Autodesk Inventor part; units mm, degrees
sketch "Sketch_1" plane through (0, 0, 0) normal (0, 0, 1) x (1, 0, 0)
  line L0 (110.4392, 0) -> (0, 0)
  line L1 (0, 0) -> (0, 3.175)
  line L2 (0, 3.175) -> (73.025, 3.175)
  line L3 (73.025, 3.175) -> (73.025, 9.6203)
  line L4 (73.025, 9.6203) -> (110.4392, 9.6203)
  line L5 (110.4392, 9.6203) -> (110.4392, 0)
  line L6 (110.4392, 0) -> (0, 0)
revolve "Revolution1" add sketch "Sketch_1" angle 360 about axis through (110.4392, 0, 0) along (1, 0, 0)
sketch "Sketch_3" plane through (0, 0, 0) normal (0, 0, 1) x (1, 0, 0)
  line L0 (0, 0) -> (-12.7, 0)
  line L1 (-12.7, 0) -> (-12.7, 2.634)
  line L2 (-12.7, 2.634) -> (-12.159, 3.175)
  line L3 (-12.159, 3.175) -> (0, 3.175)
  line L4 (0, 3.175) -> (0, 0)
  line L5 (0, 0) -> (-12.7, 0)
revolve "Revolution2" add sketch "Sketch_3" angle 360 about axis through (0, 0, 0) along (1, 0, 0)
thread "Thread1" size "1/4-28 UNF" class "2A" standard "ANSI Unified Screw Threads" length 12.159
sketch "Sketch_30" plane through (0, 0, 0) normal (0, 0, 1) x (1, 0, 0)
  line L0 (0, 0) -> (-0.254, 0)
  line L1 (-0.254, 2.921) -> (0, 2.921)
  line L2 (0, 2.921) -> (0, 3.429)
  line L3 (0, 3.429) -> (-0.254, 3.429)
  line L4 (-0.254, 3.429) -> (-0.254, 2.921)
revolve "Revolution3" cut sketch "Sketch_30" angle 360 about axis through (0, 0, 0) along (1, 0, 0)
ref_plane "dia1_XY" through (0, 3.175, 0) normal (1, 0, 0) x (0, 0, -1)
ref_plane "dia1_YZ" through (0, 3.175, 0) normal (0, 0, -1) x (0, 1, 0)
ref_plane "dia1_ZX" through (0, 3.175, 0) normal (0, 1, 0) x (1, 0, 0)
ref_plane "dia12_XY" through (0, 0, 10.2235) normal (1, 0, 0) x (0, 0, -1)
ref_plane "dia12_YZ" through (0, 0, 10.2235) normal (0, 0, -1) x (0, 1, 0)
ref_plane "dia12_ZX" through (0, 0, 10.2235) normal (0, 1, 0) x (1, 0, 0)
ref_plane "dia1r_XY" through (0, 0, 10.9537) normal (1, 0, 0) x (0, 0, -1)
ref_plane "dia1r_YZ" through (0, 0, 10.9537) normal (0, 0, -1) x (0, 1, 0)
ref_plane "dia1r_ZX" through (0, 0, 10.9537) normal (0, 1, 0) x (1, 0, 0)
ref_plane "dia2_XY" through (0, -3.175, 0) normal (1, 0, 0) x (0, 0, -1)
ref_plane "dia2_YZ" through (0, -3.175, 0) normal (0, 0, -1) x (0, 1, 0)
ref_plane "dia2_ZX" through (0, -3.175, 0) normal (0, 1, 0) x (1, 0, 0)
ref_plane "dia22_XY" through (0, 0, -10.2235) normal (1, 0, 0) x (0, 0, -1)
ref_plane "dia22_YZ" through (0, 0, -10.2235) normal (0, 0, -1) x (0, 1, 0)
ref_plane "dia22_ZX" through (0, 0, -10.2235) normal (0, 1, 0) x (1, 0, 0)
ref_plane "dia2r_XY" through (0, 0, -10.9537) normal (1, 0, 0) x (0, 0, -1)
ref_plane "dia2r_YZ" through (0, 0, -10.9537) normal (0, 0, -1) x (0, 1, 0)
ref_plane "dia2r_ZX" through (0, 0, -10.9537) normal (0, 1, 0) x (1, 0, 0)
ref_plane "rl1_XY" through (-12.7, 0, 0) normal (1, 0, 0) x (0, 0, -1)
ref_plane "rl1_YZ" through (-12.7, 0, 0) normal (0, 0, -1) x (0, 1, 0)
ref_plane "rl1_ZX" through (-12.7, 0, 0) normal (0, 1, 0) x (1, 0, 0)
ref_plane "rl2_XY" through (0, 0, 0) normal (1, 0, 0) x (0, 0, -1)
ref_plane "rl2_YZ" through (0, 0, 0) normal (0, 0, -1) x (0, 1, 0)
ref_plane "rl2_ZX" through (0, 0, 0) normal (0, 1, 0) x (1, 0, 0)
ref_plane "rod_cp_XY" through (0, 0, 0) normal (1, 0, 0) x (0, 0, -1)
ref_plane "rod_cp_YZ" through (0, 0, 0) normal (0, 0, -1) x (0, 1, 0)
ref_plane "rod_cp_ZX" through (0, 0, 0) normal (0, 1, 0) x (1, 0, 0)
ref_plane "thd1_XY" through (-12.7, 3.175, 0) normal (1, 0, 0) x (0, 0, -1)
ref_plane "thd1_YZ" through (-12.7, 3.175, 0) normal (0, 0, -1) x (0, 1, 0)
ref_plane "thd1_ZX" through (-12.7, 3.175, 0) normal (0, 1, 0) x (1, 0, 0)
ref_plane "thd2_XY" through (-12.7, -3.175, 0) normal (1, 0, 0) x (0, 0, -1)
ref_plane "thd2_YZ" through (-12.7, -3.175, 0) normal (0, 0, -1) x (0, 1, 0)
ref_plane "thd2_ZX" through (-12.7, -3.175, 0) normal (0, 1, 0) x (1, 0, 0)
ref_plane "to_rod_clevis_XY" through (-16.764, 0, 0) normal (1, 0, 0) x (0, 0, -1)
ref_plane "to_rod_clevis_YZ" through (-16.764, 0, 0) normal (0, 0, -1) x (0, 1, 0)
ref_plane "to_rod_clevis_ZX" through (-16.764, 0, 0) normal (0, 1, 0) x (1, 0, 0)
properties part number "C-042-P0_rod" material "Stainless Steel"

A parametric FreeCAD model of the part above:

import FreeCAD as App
import Part
import Sketcher
from FreeCAD import Vector
Q = App.Units.Quantity

doc = App.newDocument("Part")
body = doc.addObject("PartDesign::Body", "Body")

# Sketch on XY plane
sketch1 = doc.addObject("Sketcher::SketchObject", "Sketch")
body.addObject(sketch1)
sketch1.AttachmentSupport = (doc.XY_Plane, [""])
sketch1.MapMode = "FlatFace"
sketch1.addGeometry([
    Part.LineSegment(Vector(0, 0, 0), Vector(110.4, 0, 0)),  # 0
    Part.LineSegment(Vector(110.4, 0, 0), Vector(110.4, 9.6, 0)),  # 1
    Part.LineSegment(Vector(110.4, 9.6, 0), Vector(73, 9.6, 0)),  # 2
    Part.LineSegment(Vector(73, 9.6, 0), Vector(73, 3.2, 0)),  # 3
    Part.LineSegment(Vector(73, 3.2, 0), Vector(0, 3.2, 0)),  # 4
    Part.LineSegment(Vector(0, 3.2, 0), Vector(0, 0, 0)),  # 5
], False)
sketch1.addConstraint([
    Sketcher.Constraint("Coincident", 0, 2, 1, 1),
    Sketcher.Constraint("Coincident", 1, 2, 2, 1),
    Sketcher.Constraint("Coincident", 2, 2, 3, 1),
    Sketcher.Constraint("Coincident", 3, 2, 4, 1),
    Sketcher.Constraint("Coincident", 4, 2, 5, 1),
    Sketcher.Constraint("Coincident", 5, 2, 0, 1),
    Sketcher.Constraint("Horizontal", 0),
    Sketcher.Constraint("Vertical", 1),
    Sketcher.Constraint("Horizontal", 2),
    Sketcher.Constraint("Vertical", 3),
    Sketcher.Constraint("Horizontal", 4),
    Sketcher.Constraint("Vertical", 5),
    Sketcher.Constraint("Coincident", 5, 2, -1, 1),
    Sketcher.Constraint("DistanceX", 0, 1, 0, 2, Q("4.348 in")),
    Sketcher.Constraint("DistanceX", 2, 2, 2, 1, Q("1.473 in")),
    Sketcher.Constraint("DistanceY", 5, 2, 5, 1, Q("0.125 in")),
    Sketcher.Constraint("DistanceY", 1, 1, 1, 2, Q("9.6203 mm")),
])
revolution = doc.addObject("PartDesign::Revolution", "Revolution")
body.addObject(revolution)
revolution.Profile = sketch1
revolution.ReferenceAxis = (sketch1, ["H_Axis"])
revolution.Angle = 360

# Sketch on XY plane
sketch2 = doc.addObject("Sketcher::SketchObject", "Sketch001")
body.addObject(sketch2)
sketch2.AttachmentSupport = (doc.XY_Plane, [""])
sketch2.MapMode = "FlatFace"
sketch2.addGeometry([
    Part.LineSegment(Vector(-12.7, 0, 0), Vector(0, 0, 0)),  # 0
    Part.LineSegment(Vector(0, 0, 0), Vector(0, 3.2, 0)),  # 1
    Part.LineSegment(Vector(0, 3.2, 0), Vector(-12.2, 3.2, 0)),  # 2
    Part.LineSegment(Vector(-12.2, 3.2, 0), Vector(-12.7, 2.6, 0)),  # 3
    Part.LineSegment(Vector(-12.7, 2.6, 0), Vector(-12.7, 0, 0)),  # 4
], False)
sketch2.addConstraint([
    Sketcher.Constraint("Coincident", 0, 2, 1, 1),
    Sketcher.Constraint("Coincident", 1, 2, 2, 1),
    Sketcher.Constraint("Coincident", 2, 2, 3, 1),
    Sketcher.Constraint("Coincident", 3, 2, 4, 1),
    Sketcher.Constraint("Coincident", 4, 2, 0, 1),
    Sketcher.Constraint("Horizontal", 0),
    Sketcher.Constraint("Vertical", 1),
    Sketcher.Constraint("Horizontal", 2),
    Sketcher.Constraint("Vertical", 4),
    Sketcher.Constraint("Coincident", 0, 2, -1, 1),
    Sketcher.Constraint("DistanceX", 0, 1, 0, 2, Q("0.5 in")),
    Sketcher.Constraint("Angle", 3, Q("-135 deg")),
    Sketcher.Constraint("DistanceY", 1, 1, 1, 2, Q("0.125 in")),
    Sketcher.Constraint("DistanceX", 2, 2, 2, 1, Q("0.4787 in")),
])
revolution2 = doc.addObject("PartDesign::Revolution", "Revolution001")
body.addObject(revolution2)
revolution2.Profile = sketch2
revolution2.ReferenceAxis = (sketch2, ["H_Axis"])
revolution2.Angle = 360

# Sketch on XY plane
sketch3 = doc.addObject("Sketcher::SketchObject", "Sketch002")
body.addObject(sketch3)
sketch3.AttachmentSupport = (doc.XY_Plane, [""])
sketch3.MapMode = "FlatFace"
sketch3.addGeometry([
    Part.LineSegment(Vector(-0.25, 3.43, 0), Vector(-0.25, 2.92, 0)),
    Part.LineSegment(Vector(-0.25, 2.92, 0), Vector(0, 2.92, 0)),
    Part.LineSegment(Vector(0, 2.92, 0), Vector(0, 3.43, 0)),
    Part.LineSegment(Vector(0, 3.43, 0), Vector(-0.25, 3.43, 0)),
], False)
sketch3.addConstraint([
    Sketcher.Constraint("Coincident", 0, 2, 1, 1),
    Sketcher.Constraint("Coincident", 1, 2, 2, 1),
    Sketcher.Constraint("Coincident", 2, 2, 3, 1),
    Sketcher.Constraint("Coincident", 3, 2, 0, 1),
    Sketcher.Constraint("Vertical", 0),
    Sketcher.Constraint("Horizontal", 1),
    Sketcher.Constraint("Vertical", 2),
    Sketcher.Constraint("Horizontal", 3),
    Sketcher.Constraint("PointOnObject", 1, 2, -2),
    Sketcher.Constraint("DistanceX", 1, 1, 1, 2, Q("0.01 in")),
    Sketcher.Constraint("DistanceY", 0, 2, 0, 1, Q("0.02 in")),
    Sketcher.Constraint("DistanceY", -1, 1, 0, 2, Q("0.115 in")),
])
groove = doc.addObject("PartDesign::Groove", "Groove")
body.addObject(groove)
groove.Profile = sketch3
groove.ReferenceAxis = (sketch3, ["H_Axis"])
groove.Angle = 360

doc.recompute()
